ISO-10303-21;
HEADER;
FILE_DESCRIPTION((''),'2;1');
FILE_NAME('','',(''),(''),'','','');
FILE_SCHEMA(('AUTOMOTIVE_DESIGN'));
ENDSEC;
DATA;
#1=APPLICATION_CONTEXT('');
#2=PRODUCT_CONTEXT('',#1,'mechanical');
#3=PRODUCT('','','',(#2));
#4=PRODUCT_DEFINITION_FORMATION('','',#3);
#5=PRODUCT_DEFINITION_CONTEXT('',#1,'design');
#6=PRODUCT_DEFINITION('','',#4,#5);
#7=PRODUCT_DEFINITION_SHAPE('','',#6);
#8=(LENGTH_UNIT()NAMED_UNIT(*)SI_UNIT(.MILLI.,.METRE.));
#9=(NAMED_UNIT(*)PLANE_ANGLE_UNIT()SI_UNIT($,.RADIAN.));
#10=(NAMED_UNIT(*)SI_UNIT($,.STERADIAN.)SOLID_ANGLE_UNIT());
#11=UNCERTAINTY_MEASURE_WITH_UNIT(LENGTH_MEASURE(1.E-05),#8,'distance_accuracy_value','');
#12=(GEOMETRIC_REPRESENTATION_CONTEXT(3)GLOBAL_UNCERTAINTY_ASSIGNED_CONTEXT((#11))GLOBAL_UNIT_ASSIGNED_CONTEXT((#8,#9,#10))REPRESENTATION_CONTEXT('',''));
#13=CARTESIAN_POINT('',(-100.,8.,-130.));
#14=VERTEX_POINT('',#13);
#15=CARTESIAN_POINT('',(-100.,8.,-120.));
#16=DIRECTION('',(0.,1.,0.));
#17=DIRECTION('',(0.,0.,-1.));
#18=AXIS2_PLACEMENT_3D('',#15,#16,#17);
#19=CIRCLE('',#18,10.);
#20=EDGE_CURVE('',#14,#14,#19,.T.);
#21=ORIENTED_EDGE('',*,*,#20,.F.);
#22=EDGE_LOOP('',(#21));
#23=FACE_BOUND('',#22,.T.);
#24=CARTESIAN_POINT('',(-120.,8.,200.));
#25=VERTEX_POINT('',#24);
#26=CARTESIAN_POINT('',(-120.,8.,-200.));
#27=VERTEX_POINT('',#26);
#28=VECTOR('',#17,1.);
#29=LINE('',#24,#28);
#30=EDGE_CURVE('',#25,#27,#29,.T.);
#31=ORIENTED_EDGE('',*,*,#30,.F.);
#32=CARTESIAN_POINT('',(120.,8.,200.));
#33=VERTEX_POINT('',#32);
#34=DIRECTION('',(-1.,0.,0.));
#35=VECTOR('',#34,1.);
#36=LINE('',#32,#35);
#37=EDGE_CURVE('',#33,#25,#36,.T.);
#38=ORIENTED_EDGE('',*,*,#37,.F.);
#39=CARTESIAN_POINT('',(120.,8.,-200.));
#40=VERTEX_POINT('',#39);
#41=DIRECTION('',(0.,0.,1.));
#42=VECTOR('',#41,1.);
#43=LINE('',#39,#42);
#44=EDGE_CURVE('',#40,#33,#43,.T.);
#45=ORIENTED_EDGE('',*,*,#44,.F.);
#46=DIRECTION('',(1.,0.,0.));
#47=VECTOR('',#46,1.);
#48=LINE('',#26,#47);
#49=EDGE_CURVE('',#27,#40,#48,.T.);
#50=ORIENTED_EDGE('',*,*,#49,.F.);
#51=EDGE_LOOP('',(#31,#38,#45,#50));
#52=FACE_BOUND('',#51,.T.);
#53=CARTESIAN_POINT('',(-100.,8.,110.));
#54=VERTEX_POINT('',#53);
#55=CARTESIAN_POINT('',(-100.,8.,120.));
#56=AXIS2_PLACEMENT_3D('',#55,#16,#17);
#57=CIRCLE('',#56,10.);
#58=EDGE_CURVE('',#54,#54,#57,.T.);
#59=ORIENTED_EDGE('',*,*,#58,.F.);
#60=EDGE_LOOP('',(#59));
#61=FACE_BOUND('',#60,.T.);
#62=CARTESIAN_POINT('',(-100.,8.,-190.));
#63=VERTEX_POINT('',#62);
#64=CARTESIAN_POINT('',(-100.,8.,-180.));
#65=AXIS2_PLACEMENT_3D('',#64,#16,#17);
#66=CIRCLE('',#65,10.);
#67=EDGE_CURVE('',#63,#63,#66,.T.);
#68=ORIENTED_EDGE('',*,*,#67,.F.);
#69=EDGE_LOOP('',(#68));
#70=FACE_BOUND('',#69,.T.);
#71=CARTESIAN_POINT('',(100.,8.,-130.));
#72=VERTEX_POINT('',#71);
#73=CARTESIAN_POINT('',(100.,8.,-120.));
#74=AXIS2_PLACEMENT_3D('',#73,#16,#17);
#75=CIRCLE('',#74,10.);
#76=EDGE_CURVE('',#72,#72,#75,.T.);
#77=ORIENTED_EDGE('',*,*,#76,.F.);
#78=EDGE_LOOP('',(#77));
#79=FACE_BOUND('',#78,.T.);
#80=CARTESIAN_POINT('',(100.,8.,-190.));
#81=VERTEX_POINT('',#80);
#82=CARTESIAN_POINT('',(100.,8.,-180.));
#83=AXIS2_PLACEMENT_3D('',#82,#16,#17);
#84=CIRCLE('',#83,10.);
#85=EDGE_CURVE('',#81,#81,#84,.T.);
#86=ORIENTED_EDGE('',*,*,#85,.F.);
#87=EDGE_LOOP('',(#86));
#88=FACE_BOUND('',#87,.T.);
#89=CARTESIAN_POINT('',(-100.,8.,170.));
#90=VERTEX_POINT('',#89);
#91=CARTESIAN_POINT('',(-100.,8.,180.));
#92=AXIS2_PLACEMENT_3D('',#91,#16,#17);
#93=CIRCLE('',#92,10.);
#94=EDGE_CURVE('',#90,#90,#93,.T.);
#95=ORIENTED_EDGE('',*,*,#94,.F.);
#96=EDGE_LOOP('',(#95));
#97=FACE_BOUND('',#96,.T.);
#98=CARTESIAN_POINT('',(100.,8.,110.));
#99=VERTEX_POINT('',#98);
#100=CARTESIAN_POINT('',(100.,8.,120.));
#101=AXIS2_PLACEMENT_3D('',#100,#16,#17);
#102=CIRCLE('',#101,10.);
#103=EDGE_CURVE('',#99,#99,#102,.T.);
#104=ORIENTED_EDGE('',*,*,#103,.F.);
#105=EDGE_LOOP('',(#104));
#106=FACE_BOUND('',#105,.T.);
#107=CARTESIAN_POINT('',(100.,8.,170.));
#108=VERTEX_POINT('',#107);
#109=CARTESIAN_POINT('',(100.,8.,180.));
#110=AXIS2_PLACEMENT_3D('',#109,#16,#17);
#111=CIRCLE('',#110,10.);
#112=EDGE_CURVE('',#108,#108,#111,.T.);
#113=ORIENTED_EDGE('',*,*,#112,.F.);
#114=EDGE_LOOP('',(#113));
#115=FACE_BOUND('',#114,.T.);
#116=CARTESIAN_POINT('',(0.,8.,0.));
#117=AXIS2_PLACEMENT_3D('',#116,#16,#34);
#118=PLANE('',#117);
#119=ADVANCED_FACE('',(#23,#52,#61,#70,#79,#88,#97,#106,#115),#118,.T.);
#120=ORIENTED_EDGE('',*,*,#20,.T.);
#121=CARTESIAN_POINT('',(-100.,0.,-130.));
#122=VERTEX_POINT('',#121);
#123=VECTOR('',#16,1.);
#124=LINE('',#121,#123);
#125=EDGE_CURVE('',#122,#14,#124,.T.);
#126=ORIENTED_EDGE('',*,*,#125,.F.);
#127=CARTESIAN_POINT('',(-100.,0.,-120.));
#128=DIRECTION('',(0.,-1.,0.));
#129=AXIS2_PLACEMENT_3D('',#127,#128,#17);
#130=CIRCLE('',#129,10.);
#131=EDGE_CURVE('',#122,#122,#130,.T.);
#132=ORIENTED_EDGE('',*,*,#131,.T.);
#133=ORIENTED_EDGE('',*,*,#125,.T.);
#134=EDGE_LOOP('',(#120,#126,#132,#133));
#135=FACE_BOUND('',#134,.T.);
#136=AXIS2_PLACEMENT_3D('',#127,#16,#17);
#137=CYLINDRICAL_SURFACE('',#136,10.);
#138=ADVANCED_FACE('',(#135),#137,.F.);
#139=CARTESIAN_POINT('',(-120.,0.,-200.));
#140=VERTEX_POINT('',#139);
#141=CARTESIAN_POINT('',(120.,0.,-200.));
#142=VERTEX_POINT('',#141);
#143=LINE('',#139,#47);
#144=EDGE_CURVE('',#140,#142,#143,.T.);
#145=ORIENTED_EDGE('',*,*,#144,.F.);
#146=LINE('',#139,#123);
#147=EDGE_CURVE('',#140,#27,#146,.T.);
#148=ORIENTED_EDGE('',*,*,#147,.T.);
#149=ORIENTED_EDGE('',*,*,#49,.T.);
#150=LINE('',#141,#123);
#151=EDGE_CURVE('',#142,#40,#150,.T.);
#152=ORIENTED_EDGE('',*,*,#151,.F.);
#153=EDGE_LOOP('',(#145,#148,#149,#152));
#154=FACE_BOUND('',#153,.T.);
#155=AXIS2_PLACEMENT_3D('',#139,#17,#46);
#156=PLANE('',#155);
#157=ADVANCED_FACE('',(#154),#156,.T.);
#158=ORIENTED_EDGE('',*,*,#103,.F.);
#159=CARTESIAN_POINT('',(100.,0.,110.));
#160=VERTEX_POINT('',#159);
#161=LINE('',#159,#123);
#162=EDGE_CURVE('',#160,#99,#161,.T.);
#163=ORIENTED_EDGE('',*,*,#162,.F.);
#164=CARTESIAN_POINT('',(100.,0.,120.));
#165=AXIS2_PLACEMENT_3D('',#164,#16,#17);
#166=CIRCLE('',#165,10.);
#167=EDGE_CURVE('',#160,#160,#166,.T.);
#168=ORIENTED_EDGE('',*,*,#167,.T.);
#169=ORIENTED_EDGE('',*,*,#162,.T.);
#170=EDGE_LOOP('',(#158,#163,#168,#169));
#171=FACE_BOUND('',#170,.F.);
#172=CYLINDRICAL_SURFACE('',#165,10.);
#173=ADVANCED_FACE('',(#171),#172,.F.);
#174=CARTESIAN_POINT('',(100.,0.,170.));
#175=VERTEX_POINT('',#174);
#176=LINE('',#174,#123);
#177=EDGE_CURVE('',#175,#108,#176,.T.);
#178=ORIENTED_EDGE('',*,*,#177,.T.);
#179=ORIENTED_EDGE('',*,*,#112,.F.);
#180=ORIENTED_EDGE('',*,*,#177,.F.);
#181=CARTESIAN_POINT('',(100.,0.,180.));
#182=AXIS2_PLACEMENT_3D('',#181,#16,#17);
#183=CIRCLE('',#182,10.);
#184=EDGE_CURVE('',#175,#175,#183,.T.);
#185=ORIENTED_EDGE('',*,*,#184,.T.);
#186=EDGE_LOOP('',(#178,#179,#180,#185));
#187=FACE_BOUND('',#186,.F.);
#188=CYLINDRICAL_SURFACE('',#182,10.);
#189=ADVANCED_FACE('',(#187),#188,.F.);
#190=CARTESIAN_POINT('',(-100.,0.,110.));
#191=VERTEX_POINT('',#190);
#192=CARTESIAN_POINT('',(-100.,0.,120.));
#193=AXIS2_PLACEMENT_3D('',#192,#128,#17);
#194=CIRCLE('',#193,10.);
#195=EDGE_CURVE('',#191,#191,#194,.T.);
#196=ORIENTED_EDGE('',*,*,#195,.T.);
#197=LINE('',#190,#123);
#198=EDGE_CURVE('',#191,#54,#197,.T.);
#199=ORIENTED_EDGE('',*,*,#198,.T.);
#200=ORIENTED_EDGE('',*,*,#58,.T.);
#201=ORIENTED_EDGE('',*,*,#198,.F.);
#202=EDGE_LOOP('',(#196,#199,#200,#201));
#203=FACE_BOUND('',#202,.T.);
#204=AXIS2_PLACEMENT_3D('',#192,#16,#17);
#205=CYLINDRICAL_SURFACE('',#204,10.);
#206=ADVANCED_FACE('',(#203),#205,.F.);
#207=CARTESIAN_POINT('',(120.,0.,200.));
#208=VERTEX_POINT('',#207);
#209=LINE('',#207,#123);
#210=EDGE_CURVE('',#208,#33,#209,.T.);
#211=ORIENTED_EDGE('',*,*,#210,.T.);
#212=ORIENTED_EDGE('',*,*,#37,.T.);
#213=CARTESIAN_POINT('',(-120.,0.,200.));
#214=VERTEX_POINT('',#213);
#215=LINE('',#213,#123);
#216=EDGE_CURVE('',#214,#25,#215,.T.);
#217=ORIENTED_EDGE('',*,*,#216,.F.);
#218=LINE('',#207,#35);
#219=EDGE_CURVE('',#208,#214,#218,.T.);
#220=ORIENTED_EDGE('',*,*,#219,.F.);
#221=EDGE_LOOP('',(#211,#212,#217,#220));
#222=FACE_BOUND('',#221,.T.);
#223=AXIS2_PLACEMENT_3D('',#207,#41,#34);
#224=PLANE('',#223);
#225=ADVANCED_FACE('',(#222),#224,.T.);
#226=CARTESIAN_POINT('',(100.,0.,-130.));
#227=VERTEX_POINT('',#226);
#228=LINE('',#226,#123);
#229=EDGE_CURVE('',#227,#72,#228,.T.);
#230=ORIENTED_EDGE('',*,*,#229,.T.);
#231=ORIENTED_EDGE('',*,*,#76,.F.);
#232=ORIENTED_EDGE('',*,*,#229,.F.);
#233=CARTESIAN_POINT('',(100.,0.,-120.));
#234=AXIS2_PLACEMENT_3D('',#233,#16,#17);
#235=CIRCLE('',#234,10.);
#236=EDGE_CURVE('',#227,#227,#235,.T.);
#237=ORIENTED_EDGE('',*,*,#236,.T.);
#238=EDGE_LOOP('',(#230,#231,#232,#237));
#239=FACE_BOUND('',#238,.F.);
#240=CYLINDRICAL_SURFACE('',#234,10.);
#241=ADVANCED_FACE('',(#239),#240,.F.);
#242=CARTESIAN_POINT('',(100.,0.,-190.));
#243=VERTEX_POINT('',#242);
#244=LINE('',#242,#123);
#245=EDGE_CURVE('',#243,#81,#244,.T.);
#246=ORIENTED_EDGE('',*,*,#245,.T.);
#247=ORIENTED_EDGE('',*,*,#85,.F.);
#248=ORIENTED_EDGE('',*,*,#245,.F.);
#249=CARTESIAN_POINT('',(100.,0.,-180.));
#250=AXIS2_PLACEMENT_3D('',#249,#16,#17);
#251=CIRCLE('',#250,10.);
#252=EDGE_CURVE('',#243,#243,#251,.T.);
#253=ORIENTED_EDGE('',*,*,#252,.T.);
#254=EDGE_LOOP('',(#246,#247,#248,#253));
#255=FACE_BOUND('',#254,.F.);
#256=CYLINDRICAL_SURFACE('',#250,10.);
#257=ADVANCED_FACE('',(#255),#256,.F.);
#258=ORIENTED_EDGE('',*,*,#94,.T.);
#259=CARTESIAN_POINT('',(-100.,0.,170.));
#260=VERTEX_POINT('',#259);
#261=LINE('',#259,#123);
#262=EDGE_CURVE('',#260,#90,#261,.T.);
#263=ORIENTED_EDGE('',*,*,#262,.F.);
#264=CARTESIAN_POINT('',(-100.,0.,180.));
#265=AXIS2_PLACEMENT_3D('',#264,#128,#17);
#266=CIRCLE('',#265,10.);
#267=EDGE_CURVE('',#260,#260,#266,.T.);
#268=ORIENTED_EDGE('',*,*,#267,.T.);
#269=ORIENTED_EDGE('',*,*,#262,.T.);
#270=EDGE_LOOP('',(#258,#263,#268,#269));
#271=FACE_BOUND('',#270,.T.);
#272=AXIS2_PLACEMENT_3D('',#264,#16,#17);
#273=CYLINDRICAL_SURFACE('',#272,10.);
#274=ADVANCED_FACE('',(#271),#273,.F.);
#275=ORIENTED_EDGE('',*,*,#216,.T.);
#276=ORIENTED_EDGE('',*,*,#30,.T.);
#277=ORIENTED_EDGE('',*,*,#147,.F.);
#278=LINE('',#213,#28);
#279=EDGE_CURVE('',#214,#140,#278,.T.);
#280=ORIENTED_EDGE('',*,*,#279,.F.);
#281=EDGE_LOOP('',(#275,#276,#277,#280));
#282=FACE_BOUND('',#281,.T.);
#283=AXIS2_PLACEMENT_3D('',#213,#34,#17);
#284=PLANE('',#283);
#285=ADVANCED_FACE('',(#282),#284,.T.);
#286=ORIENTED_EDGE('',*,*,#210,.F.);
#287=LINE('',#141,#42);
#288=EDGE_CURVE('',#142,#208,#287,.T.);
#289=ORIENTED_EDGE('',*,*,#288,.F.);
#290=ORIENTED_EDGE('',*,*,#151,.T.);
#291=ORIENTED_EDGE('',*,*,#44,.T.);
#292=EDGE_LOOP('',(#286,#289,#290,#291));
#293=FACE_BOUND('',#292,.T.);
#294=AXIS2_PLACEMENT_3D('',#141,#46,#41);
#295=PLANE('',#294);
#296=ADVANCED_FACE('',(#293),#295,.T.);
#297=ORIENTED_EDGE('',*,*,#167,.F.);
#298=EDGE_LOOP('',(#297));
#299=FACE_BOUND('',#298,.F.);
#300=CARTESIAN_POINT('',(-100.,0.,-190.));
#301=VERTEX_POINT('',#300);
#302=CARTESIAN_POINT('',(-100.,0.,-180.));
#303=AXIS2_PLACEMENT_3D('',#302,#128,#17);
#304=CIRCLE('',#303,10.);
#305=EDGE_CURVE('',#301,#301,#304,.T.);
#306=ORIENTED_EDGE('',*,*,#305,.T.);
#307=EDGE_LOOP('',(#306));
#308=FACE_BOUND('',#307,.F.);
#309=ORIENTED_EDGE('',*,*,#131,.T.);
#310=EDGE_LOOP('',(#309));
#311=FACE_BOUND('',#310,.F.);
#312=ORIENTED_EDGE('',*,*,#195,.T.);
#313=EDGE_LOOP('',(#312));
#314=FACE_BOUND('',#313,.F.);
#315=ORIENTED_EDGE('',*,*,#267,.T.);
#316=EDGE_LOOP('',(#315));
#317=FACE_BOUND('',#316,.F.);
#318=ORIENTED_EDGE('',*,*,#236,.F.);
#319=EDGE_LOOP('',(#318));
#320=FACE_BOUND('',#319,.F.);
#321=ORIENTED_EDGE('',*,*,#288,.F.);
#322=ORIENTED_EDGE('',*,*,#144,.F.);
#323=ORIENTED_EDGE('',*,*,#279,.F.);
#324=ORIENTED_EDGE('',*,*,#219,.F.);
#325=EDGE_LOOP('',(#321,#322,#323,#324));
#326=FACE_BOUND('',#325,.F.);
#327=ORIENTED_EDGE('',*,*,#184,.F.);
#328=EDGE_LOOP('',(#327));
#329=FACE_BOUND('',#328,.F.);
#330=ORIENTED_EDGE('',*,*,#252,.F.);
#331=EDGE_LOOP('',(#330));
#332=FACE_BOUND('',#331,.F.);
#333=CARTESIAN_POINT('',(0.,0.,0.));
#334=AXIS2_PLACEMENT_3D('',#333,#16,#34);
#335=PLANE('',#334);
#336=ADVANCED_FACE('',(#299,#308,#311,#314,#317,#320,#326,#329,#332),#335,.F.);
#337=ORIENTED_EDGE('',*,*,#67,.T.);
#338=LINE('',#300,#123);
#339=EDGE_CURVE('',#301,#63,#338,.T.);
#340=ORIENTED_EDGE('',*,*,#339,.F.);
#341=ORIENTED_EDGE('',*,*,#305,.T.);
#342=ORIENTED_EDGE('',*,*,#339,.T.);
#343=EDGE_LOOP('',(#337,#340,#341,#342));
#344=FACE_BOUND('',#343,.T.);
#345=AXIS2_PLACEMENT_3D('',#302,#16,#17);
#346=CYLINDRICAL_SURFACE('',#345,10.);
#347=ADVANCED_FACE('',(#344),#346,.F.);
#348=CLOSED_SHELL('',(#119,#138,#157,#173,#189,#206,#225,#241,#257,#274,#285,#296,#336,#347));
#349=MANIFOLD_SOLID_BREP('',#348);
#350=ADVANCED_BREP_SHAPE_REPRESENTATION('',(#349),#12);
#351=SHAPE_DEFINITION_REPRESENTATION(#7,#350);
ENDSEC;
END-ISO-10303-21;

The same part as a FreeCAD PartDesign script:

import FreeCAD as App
import Part
import Sketcher
from FreeCAD import Vector

doc = App.newDocument("Part")
body = doc.addObject("PartDesign::Body", "Body")

# Sketch on XZ plane
sketch1 = doc.addObject("Sketcher::SketchObject", "Sketch")
body.addObject(sketch1)
sketch1.AttachmentSupport = (doc.XZ_Plane, [""])
sketch1.MapMode = "FlatFace"
sketch1.addGeometry([
    Part.LineSegment(Vector(120, -200, 0), Vector(-120, -200, 0)),
    Part.LineSegment(Vector(-120, -200, 0), Vector(-120, 200, 0)),
    Part.LineSegment(Vector(-120, 200, 0), Vector(120, 200, 0)),
    Part.LineSegment(Vector(120, 200, 0), Vector(120, -200, 0)),
], False)
sketch1.addConstraint([
    Sketcher.Constraint("Coincident", 0, 2, 1, 1),
    Sketcher.Constraint("Coincident", 1, 2, 2, 1),
    Sketcher.Constraint("Coincident", 2, 2, 3, 1),
    Sketcher.Constraint("Coincident", 3, 2, 0, 1),
    Sketcher.Constraint("Horizontal", 0),
    Sketcher.Constraint("Vertical", 1),
    Sketcher.Constraint("Horizontal", 2),
    Sketcher.Constraint("Vertical", 3),
    Sketcher.Constraint("Symmetric", 0, 2, 2, 2, -1, 1),
    Sketcher.Constraint("DistanceX", 0, 2, 0, 1, 240.0),
    Sketcher.Constraint("DistanceY", 1, 1, 1, 2, 400.0),
])
pad1 = doc.addObject("PartDesign::Pad", "Pad")
body.addObject(pad1)
pad1.Profile = sketch1
pad1.Length = 8
pad1.Reversed = True

# Sketch on XZ plane
sketch2 = doc.addObject("Sketcher::SketchObject", "Sketch001")
body.addObject(sketch2)
sketch2.AttachmentSupport = (doc.XZ_Plane, [""])
sketch2.MapMode = "FlatFace"
sketch2.addGeometry([
    Part.Circle(Vector(100, 180, 0), Vector(0, 0, 1), 10),
    Part.Circle(Vector(100, -180, 0), Vector(0, 0, 1), 10),
    Part.Circle(Vector(100, -120, 0), Vector(0, 0, 1), 10),
    Part.Circle(Vector(100, 120, 0), Vector(0, 0, 1), 10),
], False)
sketch2.addConstraint([
    Sketcher.Constraint("Equal", 0, 1),
    Sketcher.Constraint("Equal", 1, 2),
    Sketcher.Constraint("Equal", 2, 3),
    Sketcher.Constraint("Symmetric", 0, 3, 1, 3, -1),
    Sketcher.Constraint("Symmetric", 2, 3, 3, 3, -1),
    Sketcher.Constraint("Vertical", 1, 3, 2, 3),
    Sketcher.Constraint("Diameter", 0, 20.0),
    Sketcher.Constraint("DistanceX", -1, 1, 0, 3, 100.0),
    Sketcher.Constraint("DistanceY", -1, 1, 0, 3, 180.0),
    Sketcher.Constraint("DistanceY", 2, 3, -1, 1, 120.0),
])
doc.recompute()
hole = doc.addObject("PartDesign::Hole", "Hole")
body.addObject(hole)
hole.Profile = sketch2
hole.ThreadType = "None"
hole.Diameter = 20
hole.DepthType = "ThroughAll"
doc.recompute()

mirrored = doc.addObject("PartDesign::Mirrored", "Mirrored")
body.addObject(mirrored)
mirrored.Originals = [hole]
mirrored.MirrorPlane = (doc.YZ_Plane, [""])
body.Tip = mirrored

doc.recompute()
